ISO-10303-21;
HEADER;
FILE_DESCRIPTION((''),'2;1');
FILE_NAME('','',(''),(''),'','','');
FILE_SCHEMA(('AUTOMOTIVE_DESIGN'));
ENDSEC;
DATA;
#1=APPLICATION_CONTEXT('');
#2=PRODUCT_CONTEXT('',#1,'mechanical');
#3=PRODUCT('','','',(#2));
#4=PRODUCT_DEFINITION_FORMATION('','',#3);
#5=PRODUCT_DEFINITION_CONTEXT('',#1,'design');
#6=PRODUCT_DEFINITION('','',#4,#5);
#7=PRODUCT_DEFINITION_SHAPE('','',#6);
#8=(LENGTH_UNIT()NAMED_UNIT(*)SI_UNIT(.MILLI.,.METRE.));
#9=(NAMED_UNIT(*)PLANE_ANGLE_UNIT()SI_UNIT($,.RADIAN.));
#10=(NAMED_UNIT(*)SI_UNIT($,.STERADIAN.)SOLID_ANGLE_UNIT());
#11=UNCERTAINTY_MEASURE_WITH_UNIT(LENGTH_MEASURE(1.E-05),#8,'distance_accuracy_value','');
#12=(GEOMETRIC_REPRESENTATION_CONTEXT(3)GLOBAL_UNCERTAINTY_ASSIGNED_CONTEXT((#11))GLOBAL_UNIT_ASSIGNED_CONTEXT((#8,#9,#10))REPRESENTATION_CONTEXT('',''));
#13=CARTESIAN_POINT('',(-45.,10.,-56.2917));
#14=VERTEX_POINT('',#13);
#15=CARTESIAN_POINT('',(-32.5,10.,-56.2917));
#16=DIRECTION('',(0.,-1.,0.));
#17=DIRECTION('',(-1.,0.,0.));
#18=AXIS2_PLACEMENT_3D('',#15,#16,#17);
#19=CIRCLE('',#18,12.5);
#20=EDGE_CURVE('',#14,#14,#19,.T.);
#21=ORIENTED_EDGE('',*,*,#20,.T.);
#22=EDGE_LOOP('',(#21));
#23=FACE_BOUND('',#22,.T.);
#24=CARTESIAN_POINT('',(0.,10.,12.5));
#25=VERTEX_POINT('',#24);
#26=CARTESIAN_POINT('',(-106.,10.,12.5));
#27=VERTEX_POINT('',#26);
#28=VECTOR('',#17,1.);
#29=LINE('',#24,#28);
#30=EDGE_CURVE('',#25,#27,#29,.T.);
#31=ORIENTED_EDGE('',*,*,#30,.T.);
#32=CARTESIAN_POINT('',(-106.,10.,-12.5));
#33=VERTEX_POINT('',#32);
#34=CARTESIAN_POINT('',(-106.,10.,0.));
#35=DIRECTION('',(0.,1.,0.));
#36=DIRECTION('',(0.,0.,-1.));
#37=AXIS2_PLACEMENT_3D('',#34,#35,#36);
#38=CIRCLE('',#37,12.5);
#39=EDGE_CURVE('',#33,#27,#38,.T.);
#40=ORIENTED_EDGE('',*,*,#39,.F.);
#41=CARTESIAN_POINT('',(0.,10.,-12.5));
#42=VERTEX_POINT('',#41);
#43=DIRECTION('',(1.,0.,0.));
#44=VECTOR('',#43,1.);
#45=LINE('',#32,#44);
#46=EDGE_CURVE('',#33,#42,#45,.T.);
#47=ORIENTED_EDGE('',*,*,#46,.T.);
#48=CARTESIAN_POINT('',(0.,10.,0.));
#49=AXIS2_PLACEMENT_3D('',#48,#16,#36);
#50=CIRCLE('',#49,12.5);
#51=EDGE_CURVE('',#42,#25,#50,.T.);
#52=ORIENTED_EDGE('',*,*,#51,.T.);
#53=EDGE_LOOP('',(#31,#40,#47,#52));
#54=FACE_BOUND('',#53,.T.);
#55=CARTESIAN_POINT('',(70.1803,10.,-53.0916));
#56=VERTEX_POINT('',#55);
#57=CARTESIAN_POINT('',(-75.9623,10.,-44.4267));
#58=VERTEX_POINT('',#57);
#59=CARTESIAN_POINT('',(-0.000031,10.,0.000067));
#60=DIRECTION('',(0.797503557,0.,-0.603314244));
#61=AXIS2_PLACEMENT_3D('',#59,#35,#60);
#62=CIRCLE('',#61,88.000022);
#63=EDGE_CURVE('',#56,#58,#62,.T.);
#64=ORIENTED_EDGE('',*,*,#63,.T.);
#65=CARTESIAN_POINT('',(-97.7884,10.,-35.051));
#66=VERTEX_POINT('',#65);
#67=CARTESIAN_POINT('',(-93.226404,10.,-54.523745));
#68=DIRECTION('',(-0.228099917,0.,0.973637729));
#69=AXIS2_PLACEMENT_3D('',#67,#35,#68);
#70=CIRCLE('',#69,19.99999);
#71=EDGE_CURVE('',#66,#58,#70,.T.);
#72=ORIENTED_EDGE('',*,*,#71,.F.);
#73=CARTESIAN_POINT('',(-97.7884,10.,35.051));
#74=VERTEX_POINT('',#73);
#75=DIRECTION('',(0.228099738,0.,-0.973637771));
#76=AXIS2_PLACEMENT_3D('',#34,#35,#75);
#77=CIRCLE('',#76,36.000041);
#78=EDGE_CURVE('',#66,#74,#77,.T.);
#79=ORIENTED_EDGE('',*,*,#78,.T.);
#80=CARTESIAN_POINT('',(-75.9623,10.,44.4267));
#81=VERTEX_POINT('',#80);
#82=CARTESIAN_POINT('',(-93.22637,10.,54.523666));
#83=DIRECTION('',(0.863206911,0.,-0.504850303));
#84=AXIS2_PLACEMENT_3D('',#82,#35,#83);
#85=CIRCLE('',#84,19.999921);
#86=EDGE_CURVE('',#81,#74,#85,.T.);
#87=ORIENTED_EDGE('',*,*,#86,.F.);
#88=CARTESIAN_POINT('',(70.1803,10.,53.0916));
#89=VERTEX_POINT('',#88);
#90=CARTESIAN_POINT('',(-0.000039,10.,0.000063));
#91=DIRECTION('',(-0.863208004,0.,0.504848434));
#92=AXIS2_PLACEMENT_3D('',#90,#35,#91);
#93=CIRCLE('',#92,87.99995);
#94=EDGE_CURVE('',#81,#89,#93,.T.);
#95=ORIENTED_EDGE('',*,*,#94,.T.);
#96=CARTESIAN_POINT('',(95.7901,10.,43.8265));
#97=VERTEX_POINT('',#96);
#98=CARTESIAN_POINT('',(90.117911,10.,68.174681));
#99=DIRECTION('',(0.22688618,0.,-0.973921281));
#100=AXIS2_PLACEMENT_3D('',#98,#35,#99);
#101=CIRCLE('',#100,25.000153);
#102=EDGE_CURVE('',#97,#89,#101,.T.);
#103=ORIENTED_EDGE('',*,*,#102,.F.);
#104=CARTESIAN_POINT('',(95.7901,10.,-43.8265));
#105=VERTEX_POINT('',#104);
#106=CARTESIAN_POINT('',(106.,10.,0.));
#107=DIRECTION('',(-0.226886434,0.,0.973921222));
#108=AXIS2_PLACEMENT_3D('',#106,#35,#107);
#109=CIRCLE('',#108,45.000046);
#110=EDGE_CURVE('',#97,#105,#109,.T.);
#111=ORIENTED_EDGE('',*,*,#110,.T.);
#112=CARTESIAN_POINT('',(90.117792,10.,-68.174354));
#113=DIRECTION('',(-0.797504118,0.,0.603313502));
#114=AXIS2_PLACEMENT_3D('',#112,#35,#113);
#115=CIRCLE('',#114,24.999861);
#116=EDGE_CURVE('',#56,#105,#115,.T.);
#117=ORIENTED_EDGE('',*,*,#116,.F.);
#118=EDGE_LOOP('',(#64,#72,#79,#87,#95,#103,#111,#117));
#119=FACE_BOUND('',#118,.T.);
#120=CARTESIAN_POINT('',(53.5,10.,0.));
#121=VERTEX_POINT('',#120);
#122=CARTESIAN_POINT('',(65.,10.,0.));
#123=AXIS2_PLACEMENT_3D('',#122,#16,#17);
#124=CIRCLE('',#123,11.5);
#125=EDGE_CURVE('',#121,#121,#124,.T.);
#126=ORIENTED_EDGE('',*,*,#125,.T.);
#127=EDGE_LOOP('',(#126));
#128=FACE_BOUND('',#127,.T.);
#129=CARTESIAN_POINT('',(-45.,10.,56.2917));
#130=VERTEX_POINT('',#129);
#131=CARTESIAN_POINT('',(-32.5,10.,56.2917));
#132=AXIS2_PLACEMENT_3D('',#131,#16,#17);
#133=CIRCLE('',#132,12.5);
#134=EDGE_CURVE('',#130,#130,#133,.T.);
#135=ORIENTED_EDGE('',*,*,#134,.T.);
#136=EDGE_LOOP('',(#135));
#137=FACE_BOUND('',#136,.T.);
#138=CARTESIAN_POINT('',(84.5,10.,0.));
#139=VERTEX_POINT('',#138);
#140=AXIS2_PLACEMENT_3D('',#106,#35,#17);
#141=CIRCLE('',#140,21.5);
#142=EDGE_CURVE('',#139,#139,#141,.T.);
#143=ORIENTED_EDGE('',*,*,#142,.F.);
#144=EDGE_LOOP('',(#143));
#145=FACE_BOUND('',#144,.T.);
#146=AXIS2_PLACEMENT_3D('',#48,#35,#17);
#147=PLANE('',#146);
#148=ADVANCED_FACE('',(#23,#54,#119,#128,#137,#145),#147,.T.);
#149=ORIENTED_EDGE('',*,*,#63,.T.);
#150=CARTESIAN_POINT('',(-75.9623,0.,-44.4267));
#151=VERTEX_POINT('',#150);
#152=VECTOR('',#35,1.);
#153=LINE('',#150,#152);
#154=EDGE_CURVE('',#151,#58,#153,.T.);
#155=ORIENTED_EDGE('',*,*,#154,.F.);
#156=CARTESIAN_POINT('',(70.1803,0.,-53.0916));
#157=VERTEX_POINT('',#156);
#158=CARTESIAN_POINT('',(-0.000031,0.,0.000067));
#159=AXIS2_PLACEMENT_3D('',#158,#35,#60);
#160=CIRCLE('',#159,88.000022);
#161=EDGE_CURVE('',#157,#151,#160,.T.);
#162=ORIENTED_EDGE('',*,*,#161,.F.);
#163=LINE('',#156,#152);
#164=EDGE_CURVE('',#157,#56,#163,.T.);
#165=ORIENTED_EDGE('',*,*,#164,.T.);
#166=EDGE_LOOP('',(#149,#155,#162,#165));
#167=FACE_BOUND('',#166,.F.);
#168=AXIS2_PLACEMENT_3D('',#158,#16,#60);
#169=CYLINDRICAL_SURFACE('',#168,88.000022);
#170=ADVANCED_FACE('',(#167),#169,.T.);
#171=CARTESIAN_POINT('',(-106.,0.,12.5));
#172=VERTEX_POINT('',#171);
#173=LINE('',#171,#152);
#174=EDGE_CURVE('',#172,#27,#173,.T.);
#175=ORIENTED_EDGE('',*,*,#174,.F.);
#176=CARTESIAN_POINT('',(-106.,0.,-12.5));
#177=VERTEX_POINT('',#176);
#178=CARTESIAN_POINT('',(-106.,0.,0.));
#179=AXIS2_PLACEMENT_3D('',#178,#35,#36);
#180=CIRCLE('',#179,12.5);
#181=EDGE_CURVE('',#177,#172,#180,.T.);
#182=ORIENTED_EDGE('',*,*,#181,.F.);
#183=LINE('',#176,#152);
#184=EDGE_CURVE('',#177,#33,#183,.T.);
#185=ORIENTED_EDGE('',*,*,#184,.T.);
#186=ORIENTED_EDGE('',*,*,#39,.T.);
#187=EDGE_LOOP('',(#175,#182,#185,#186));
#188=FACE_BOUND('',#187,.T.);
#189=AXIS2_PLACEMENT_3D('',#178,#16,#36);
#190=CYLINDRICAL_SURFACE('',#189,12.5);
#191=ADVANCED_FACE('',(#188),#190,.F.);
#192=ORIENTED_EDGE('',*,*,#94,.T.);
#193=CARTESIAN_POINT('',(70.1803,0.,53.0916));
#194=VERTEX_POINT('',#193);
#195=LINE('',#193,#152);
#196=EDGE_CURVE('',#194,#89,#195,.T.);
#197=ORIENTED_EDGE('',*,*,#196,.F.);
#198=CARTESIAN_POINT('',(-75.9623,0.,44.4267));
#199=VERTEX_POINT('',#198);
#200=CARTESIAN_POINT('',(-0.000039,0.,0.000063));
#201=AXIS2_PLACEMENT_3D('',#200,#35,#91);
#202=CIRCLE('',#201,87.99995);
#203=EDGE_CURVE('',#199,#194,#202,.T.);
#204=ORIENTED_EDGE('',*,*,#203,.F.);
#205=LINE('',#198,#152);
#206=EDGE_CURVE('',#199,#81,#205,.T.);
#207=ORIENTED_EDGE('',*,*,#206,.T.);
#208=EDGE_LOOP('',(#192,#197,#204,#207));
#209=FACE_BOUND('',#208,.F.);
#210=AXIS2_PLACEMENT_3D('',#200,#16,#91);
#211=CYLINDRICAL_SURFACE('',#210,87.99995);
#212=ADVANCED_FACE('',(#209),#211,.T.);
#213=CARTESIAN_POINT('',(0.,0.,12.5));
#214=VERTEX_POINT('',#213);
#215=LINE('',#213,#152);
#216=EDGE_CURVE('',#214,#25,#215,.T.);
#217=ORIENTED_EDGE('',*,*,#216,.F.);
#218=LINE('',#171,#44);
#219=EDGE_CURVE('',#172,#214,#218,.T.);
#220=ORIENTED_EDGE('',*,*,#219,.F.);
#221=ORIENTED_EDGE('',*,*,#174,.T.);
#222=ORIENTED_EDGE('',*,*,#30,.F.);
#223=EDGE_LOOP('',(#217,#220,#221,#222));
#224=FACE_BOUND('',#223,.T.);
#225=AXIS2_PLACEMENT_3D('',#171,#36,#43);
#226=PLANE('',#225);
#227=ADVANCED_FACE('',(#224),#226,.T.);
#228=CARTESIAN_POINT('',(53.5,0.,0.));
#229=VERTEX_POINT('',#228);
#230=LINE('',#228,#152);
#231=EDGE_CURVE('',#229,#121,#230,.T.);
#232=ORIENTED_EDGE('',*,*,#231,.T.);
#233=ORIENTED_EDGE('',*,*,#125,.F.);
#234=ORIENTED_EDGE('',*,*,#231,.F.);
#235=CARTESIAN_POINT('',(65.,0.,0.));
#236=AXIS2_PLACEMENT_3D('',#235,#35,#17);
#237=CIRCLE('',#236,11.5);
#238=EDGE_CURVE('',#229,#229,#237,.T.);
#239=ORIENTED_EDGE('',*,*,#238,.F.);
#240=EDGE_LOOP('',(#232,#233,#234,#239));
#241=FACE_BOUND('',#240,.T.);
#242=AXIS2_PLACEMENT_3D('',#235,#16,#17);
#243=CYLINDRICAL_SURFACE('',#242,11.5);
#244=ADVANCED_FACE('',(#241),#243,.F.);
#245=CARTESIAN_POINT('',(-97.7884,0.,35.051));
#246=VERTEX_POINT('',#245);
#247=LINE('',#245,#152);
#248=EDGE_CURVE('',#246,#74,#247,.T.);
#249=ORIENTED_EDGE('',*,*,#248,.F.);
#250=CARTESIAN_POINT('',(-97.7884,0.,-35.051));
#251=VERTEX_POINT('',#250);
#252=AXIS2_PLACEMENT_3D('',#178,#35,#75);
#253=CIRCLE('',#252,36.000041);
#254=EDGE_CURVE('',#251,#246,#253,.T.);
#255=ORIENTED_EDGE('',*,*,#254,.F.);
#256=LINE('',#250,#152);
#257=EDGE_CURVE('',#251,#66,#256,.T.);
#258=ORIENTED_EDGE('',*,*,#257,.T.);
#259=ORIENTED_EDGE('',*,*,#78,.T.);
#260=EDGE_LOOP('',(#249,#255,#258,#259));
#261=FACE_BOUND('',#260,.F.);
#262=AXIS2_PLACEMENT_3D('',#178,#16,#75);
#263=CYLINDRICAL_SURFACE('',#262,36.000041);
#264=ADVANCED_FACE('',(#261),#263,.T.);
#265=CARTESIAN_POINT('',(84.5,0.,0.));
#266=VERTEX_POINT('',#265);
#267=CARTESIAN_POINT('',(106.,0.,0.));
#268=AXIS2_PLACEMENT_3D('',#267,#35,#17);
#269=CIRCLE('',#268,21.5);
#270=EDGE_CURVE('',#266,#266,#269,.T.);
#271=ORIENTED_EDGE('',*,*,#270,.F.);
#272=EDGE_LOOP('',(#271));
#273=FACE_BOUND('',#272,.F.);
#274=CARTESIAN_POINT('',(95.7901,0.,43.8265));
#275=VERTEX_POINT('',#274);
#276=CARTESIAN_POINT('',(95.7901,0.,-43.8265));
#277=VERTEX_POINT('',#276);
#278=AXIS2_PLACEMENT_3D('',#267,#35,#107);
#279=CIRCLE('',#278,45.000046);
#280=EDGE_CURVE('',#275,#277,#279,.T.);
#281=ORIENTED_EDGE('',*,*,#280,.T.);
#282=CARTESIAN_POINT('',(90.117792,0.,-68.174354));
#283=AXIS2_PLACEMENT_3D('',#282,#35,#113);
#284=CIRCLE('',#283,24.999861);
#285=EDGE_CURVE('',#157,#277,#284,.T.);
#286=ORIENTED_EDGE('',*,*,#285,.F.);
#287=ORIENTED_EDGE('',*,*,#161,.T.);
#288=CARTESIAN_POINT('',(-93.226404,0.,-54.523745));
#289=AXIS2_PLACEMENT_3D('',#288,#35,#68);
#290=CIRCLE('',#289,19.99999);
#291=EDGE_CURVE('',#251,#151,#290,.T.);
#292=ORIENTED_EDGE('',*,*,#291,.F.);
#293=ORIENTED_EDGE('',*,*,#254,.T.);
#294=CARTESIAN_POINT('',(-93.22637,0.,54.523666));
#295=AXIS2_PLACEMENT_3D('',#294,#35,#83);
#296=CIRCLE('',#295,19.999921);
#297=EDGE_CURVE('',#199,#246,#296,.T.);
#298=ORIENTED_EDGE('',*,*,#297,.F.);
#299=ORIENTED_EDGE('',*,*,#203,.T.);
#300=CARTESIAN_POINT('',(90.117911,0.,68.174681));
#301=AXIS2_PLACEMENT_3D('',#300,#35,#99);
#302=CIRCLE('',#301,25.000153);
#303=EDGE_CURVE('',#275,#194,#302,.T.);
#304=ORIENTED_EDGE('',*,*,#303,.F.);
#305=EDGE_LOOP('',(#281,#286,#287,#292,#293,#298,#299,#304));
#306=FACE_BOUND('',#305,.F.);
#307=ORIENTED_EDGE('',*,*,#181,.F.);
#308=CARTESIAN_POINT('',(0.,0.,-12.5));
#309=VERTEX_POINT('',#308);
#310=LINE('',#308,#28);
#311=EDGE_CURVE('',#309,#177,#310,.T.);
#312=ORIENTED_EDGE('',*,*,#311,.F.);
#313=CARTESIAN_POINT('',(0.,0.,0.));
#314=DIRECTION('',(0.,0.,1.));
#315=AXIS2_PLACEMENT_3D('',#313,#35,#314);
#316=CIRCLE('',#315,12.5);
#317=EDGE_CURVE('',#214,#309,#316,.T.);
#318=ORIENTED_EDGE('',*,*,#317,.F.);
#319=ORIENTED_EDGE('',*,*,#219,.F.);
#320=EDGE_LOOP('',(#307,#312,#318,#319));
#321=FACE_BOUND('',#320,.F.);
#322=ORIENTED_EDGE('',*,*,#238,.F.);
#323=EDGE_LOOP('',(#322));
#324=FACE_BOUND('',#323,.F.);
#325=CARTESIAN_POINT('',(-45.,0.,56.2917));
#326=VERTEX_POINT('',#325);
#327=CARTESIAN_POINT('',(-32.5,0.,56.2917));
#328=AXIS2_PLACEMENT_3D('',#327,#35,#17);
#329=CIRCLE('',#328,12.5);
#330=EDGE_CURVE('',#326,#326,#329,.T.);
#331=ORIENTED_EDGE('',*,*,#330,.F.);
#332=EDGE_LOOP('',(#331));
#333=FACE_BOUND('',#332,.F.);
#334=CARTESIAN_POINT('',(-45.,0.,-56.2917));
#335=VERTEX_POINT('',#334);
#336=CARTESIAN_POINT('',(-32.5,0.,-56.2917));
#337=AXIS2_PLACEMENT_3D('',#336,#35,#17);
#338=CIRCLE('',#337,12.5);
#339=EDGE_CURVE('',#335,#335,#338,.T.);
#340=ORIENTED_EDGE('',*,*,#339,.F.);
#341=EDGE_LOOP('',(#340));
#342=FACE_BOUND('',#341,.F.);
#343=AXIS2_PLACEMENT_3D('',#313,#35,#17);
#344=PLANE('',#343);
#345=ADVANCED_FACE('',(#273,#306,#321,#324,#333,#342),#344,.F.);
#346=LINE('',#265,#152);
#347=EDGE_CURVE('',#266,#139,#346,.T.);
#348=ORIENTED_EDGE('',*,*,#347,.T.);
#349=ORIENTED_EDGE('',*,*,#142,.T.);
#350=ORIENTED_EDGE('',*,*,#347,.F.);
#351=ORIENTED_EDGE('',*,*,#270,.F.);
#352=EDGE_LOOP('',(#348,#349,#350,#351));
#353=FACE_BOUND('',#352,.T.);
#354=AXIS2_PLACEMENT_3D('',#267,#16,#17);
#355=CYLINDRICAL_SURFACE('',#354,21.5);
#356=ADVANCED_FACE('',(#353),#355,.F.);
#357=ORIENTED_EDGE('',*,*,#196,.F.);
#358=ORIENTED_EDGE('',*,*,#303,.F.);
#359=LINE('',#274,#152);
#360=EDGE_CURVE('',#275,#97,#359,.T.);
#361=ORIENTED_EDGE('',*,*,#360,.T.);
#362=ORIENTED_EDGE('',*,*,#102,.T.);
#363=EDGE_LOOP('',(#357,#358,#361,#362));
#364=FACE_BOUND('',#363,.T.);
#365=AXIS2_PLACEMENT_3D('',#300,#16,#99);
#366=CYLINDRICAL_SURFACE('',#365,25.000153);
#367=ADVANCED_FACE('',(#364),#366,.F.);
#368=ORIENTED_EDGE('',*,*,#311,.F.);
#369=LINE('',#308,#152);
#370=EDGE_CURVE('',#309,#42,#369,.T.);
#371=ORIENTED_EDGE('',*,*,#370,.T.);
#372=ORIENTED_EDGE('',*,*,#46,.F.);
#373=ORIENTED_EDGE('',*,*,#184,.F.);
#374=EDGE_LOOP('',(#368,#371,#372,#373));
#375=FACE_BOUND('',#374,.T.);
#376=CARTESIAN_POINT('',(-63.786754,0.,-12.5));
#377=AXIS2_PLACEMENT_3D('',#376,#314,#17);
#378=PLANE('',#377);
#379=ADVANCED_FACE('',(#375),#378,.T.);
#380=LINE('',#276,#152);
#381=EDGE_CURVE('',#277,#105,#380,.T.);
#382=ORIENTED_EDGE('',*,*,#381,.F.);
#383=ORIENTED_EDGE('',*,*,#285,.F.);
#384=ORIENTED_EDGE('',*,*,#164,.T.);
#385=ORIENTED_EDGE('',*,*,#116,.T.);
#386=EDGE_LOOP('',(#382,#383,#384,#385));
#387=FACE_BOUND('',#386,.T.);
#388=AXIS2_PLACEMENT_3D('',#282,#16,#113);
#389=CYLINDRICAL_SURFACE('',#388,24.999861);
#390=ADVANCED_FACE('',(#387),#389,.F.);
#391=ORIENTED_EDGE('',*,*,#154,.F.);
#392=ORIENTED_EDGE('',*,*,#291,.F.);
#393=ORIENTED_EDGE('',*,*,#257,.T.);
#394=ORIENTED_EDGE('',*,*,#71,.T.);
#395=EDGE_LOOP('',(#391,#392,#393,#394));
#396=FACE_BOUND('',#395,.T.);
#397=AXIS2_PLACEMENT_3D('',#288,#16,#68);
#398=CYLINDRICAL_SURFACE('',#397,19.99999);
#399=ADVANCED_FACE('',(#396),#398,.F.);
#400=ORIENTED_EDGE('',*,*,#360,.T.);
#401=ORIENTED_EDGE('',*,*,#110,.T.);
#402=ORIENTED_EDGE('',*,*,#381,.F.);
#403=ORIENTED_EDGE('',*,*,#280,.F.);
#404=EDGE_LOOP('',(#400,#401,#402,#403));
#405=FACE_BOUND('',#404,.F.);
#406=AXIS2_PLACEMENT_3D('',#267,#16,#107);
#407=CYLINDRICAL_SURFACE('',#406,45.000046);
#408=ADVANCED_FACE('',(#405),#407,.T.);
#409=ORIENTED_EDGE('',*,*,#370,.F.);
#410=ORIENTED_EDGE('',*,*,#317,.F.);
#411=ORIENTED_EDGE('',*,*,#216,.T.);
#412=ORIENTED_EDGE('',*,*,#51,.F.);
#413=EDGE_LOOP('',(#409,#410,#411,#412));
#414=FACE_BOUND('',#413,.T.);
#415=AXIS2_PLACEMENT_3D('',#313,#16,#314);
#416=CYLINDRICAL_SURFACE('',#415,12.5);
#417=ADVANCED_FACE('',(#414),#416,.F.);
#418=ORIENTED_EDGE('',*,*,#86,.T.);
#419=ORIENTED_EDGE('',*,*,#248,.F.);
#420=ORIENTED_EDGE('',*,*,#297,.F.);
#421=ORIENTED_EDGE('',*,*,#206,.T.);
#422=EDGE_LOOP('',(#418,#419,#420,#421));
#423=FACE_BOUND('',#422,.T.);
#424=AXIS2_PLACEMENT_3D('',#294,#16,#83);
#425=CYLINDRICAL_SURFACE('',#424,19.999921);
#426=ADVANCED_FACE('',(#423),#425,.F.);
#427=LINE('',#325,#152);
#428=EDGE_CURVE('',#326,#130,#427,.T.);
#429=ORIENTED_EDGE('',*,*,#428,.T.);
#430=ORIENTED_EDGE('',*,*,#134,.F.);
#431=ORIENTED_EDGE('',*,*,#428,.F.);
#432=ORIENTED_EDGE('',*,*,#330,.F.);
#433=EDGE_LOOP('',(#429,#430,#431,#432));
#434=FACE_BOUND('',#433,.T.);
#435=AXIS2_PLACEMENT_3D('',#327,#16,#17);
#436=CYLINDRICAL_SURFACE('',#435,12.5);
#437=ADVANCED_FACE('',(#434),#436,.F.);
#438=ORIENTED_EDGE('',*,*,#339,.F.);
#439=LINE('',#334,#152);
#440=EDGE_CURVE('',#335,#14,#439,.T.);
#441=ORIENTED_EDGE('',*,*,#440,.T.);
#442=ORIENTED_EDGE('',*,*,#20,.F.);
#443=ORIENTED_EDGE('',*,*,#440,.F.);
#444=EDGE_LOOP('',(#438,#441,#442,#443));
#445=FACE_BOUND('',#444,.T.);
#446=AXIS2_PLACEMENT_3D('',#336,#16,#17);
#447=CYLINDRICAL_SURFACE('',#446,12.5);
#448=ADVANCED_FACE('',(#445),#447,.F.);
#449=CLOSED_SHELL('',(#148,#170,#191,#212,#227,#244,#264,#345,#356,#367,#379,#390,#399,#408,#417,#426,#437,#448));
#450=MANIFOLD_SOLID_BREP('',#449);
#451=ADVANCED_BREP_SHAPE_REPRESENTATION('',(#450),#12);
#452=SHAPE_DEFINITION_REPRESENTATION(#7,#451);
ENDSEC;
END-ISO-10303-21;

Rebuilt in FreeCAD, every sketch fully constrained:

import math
import FreeCAD as App
import Part
import Sketcher
Q = App.Units.Quantity

doc = App.newDocument("Part")
body = doc.addObject("PartDesign::Body", "Body")

sketch1 = body.newObject("Sketcher::SketchObject", "Sketch")
sketch1.AttachmentSupport = (doc.getObject("XZ_Plane"), [""])
sketch1.MapMode = "FlatFace"
sketch1.addGeometry([
    Part.ArcOfCircle(Part.Circle(App.Vector(-93, -55, 0), App.Vector(0, 0, 1), 20), math.radians(30), math.radians(103)),
    Part.ArcOfCircle(Part.Circle(App.Vector(-106, 0, 0), App.Vector(0, 0, 1), 36), math.radians(77), math.radians(283)),
    Part.ArcOfCircle(Part.Circle(App.Vector(-93, 55, 0), App.Vector(0, 0, 1), 20), math.radians(-103), math.radians(-30)),
    Part.ArcOfCircle(Part.Circle(App.Vector(0, 0, 0), App.Vector(0, 0, 1), 88), math.radians(37), math.radians(150)),
    Part.ArcOfCircle(Part.Circle(App.Vector(90, 68, 0), App.Vector(0, 0, 1), 25), math.radians(-143), math.radians(-77)),
    Part.ArcOfCircle(Part.Circle(App.Vector(106, 0, 0), App.Vector(0, 0, 1), 45), math.radians(-103), math.radians(103)),
    Part.ArcOfCircle(Part.Circle(App.Vector(90, -68, 0), App.Vector(0, 0, 1), 25), math.radians(77), math.radians(143)),
    Part.ArcOfCircle(Part.Circle(App.Vector(0, 0, 0), App.Vector(0, 0, 1), 88), math.radians(-150), math.radians(-37)),
    Part.Circle(App.Vector(106, 0, 0), App.Vector(0, 0, 1), 22),
    Part.Circle(App.Vector(-32, 56, 0), App.Vector(0, 0, 1), 12),
    Part.Circle(App.Vector(65, 0, 0), App.Vector(0, 0, 1), 12),
    Part.Circle(App.Vector(-32, -56, 0), App.Vector(0, 0, 1), 12),
    Part.LineSegment(App.Vector(-106, -12, 0), App.Vector(0, -12, 0)),
    Part.ArcOfCircle(Part.Circle(App.Vector(0, 0, 0), App.Vector(0, 0, 1), 12), math.radians(-90), math.radians(90)),
    Part.LineSegment(App.Vector(0, 12, 0), App.Vector(-106, 12, 0)),
    Part.ArcOfCircle(Part.Circle(App.Vector(-106, 0, 0), App.Vector(0, 0, 1), 12), math.radians(90), math.radians(270)),
], False)
sketch1.addConstraint([
    Sketcher.Constraint("Tangent", 0, 2, 1, 2),
    Sketcher.Constraint("Tangent", 1, 1, 2, 1),
    Sketcher.Constraint("Tangent", 2, 2, 3, 2),
    Sketcher.Constraint("Tangent", 3, 1, 4, 1),
    Sketcher.Constraint("Tangent", 4, 2, 5, 2),
    Sketcher.Constraint("Tangent", 5, 1, 6, 1),
    Sketcher.Constraint("Tangent", 6, 2, 7, 2),
    Sketcher.Constraint("Tangent", 7, 1, 0, 1),
    Sketcher.Constraint("Tangent", 12, 2, 13, 1),
    Sketcher.Constraint("Tangent", 13, 2, 14, 1),
    Sketcher.Constraint("Tangent", 14, 2, 15, 1),
    Sketcher.Constraint("Tangent", 15, 2, 12, 1),
    Sketcher.Constraint("Horizontal", 12),
    Sketcher.Constraint("Horizontal", 14),
    Sketcher.Constraint("Coincident", 3, 3, -1, 1),
    Sketcher.Constraint("Coincident", 7, 3, -1, 1),
    Sketcher.Constraint("Coincident", 13, 3, -1, 1),
    Sketcher.Constraint("Coincident", 8, 3, 5, 3),
    Sketcher.Constraint("Coincident", 15, 3, 1, 3),
    Sketcher.Constraint("Equal", 0, 2),
    Sketcher.Constraint("Equal", 4, 6),
    Sketcher.Constraint("Equal", 3, 7),
    Sketcher.Constraint("Equal", 9, 11),
    Sketcher.Constraint("Equal", 11, 13),
    Sketcher.Constraint("Symmetric", 1, 3, 5, 3, -1, 1),
    Sketcher.Constraint("Symmetric", 9, 3, 11, 3, -1),
    Sketcher.Constraint("PointOnObject", 10, 3, -1),
    Sketcher.Constraint("Diameter", 8, Q("43 mm")),
    Sketcher.Constraint("Diameter", 9, Q("25 mm")),
    Sketcher.Constraint("Diameter", 10, Q("23 mm")),
    Sketcher.Constraint("Radius", 0, Q("20 mm")),
    Sketcher.Constraint("Radius", 1, Q("36 mm")),
    Sketcher.Constraint("Radius", 4, Q("25 mm")),
    Sketcher.Constraint("Radius", 5, Q("45 mm")),
    Sketcher.Constraint("DistanceX", 12, 1, 12, 2, Q("106 mm")),
    Sketcher.Constraint("Radius", 3, Q("88 mm")),
    Sketcher.Constraint("DistanceX", -1, 1, 10, 3, Q("65 mm")),
    Sketcher.Constraint("DistanceX", 9, 3, -1, 1, Q("32.5 mm")),
    Sketcher.Constraint("DistanceY", 2, 3, 9, 3, Q("1.768 mm")),
])
pad1 = body.newObject("PartDesign::Pad", "Pad")
pad1.Profile = sketch1
pad1.Length = 10
pad1.Reversed = True

doc.recompute()
